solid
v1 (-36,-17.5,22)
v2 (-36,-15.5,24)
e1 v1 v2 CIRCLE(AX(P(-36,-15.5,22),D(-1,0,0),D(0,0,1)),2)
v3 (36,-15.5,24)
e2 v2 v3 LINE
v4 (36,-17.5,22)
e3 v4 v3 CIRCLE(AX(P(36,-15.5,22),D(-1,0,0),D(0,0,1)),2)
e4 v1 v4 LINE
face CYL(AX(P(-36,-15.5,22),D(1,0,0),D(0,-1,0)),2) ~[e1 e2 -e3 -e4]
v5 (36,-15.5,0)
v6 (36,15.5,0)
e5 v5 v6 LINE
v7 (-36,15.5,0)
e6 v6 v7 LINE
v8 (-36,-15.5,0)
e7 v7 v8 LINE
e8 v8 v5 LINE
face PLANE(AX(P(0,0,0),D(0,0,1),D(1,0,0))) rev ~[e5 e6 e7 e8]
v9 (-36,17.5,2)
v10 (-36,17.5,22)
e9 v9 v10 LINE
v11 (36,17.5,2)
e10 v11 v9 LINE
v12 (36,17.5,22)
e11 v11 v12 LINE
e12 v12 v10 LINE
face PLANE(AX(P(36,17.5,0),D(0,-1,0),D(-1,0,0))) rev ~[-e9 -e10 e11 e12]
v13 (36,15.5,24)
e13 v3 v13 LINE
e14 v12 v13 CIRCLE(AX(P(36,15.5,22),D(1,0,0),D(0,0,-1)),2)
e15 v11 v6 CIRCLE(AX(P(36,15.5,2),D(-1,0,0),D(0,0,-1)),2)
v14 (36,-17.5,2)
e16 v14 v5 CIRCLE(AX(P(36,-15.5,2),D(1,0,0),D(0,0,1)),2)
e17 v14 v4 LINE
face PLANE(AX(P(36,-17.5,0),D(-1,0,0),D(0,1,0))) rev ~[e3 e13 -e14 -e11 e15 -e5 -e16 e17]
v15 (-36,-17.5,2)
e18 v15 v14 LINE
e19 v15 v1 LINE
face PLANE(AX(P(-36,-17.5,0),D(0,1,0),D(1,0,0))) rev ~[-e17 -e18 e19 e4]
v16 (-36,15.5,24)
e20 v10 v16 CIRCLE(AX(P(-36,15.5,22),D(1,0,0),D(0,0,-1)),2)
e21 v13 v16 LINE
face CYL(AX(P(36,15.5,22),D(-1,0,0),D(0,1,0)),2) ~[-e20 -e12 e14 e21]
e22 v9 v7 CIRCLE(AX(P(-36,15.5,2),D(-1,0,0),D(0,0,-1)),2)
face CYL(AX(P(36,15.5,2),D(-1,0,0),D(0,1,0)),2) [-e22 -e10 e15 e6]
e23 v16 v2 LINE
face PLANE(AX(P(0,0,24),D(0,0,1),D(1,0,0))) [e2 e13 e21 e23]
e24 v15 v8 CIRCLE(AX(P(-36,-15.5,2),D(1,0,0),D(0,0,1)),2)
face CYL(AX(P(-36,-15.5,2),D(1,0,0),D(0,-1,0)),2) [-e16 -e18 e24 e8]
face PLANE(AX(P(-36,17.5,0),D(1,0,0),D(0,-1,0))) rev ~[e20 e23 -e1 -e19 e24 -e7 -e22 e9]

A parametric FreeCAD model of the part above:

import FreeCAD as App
import Part
import Sketcher


def edges_at(feature, points):
    """Names of the edges that pass closest to the given points."""
    edges = feature.Shape.Edges
    near = lambda p: min(range(len(edges)), key=lambda i: edges[i].distToShape(Part.Vertex(*p))[0])
    return sorted({f"Edge{near(p) + 1}" for p in points})

doc = App.newDocument("Part")
body = doc.addObject("PartDesign::Body", "Body")

# Sketch on XY plane
sketch1 = body.newObject("Sketcher::SketchObject", "Sketch")
sketch1.AttachmentSupport = (doc.getObject("XY_Plane"), [""])
sketch1.MapMode = "FlatFace"
sketch1.addGeometry(Part.LineSegment(App.Vector(-36, 17.5, 0), App.Vector(-36, -17.5, 0)), False)
sketch1.addGeometry(Part.LineSegment(App.Vector(-36, -17.5, 0), App.Vector(36, -17.5, 0)), False)
sketch1.addGeometry(Part.LineSegment(App.Vector(36, -17.5, 0), App.Vector(36, 17.5, 0)), False)
sketch1.addGeometry(Part.LineSegment(App.Vector(36, 17.5, 0), App.Vector(-36, 17.5, 0)), False)
sketch1.addConstraint(Sketcher.Constraint("Coincident", 0, 2, 1, 1))
sketch1.addConstraint(Sketcher.Constraint("Coincident", 1, 2, 2, 1))
sketch1.addConstraint(Sketcher.Constraint("Coincident", 2, 2, 3, 1))
sketch1.addConstraint(Sketcher.Constraint("Coincident", 3, 2, 0, 1))
sketch1.addConstraint(Sketcher.Constraint("Vertical", 0))
sketch1.addConstraint(Sketcher.Constraint("Horizontal", 1))
sketch1.addConstraint(Sketcher.Constraint("Vertical", 2))
sketch1.addConstraint(Sketcher.Constraint("Horizontal", 3))
sketch1.addConstraint(Sketcher.Constraint("Symmetric", 0, 2, 2, 2, -1, 1))
sketch1.addConstraint(Sketcher.Constraint("DistanceX", 1, 1, 1, 2, 72.0))
sketch1.addConstraint(Sketcher.Constraint("DistanceY", 0, 2, 0, 1, 35.0))
pad1 = body.newObject("PartDesign::Pad", "Pad")
pad1.Profile = sketch1
pad1.Length = 24
doc.recompute()

fillet = body.newObject("PartDesign::Fillet", "Fillet")
fillet.Base = (pad1, edges_at(pad1, [
    (0, 17.5, 0),
    (0, -17.5, 0),
    (0, -17.5, 24),
    (0, 17.5, 24),
]))
fillet.Radius = 2

doc.recompute()
